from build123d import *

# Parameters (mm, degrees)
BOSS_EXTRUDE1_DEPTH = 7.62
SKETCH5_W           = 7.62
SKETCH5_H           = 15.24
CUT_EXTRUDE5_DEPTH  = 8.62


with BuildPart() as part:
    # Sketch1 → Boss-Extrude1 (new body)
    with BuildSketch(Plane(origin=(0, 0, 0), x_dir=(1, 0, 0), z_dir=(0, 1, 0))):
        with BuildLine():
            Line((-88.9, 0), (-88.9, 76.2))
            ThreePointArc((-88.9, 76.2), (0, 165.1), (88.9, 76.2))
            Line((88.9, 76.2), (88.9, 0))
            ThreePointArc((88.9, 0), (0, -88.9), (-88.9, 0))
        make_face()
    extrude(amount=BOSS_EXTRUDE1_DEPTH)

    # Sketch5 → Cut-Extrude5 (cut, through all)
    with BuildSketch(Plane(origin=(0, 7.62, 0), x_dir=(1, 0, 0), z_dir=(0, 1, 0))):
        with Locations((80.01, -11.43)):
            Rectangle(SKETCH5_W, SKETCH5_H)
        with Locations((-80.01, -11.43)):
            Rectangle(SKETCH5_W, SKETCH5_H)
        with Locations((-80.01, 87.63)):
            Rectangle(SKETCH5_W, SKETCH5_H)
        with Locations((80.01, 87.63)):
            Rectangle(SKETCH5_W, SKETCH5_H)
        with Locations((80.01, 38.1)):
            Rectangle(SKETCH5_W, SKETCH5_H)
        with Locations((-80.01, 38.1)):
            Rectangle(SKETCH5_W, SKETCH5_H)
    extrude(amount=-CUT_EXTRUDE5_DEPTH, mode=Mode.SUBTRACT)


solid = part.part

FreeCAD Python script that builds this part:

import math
import FreeCAD as App
import Part
import Sketcher
Q = App.Units.Quantity


def add_polygon(sketch, points):
    """Adds a closed chain of lines whose ends are joined by coincident constraints."""
    first, n = sketch.GeometryCount, len(points)
    for a, b in zip(points, points[1:] + points[:1]):
        sketch.addGeometry(Part.LineSegment(App.Vector(*a, 0), App.Vector(*b, 0)), False)
    for i in range(n):
        sketch.addConstraint(Sketcher.Constraint("Coincident", first + i, 2, first + (i + 1) % n, 1))

doc = App.newDocument("Part")
body = doc.addObject("PartDesign::Body", "Body")

sketch1 = body.newObject("Sketcher::SketchObject", "Sketch")
sketch1.AttachmentSupport = (doc.getObject("XZ_Plane"), [""])
sketch1.MapMode = "FlatFace"
sketch1.addGeometry([
    Part.LineSegment(App.Vector(-89, -76, 0), App.Vector(-89, 0, 0)),
    Part.ArcOfCircle(Part.Circle(App.Vector(0, 0, 0), App.Vector(0, 0, 1), 89), math.radians(0), math.radians(180)),
    Part.LineSegment(App.Vector(89, 0, 0), App.Vector(89, -76, 0)),
    Part.ArcOfCircle(Part.Circle(App.Vector(0, -76, 0), App.Vector(0, 0, 1), 89), math.radians(180), math.radians(360)),
], False)
sketch1.addConstraint([
    Sketcher.Constraint("Tangent", 0, 2, 1, 2),
    Sketcher.Constraint("Tangent", 1, 1, 2, 1),
    Sketcher.Constraint("Tangent", 2, 2, 3, 2),
    Sketcher.Constraint("Tangent", 3, 1, 0, 1),
    Sketcher.Constraint("Vertical", 0),
    Sketcher.Constraint("Vertical", 2),
    Sketcher.Constraint("Coincident", 1, 3, -1, 1),
    Sketcher.Constraint("Radius", 1, Q("3.5 in")),
    Sketcher.Constraint("DistanceY", 0, 1, 0, 2, Q("3 in")),
])
pad1 = body.newObject("PartDesign::Pad", "Pad")
pad1.Profile = sketch1
pad1.Length = Q("0.3 in")
pad1.Reversed = True

sketch2 = body.newObject("Sketcher::SketchObject", "Sketch001")
sketch2.AttachmentSupport = (doc.getObject("XZ_Plane"), [""])
sketch2.MapMode = "FlatFace"
sketch2.AttachmentOffset = App.Placement(App.Vector(0, 0, -0.3 * 25.4), App.Rotation())
add_polygon(sketch2, [(76, 4), (76, 19), (84, 19), (84, 4)])
add_polygon(sketch2, [(-84, 4), (-84, 19), (-76, 19), (-76, 4)])
add_polygon(sketch2, [(-84, -95), (-84, -80), (-76, -80), (-76, -95)])
add_polygon(sketch2, [(76, -95), (76, -80), (84, -80), (84, -95)])
add_polygon(sketch2, [(76, -46), (76, -30), (84, -30), (84, -46)])
add_polygon(sketch2, [(-84, -46), (-84, -30), (-76, -30), (-76, -46)])
sketch2.addConstraint([
    Sketcher.Constraint("Vertical", 0),
    Sketcher.Constraint("Horizontal", 1),
    Sketcher.Constraint("Vertical", 2),
    Sketcher.Constraint("Horizontal", 3),
    Sketcher.Constraint("Vertical", 4),
    Sketcher.Constraint("Horizontal", 5),
    Sketcher.Constraint("Vertical", 6),
    Sketcher.Constraint("Horizontal", 7),
    Sketcher.Constraint("Vertical", 8),
    Sketcher.Constraint("Horizontal", 9),
    Sketcher.Constraint("Vertical", 10),
    Sketcher.Constraint("Horizontal", 11),
    Sketcher.Constraint("Vertical", 12),
    Sketcher.Constraint("Horizontal", 13),
    Sketcher.Constraint("Vertical", 14),
    Sketcher.Constraint("Horizontal", 15),
    Sketcher.Constraint("Vertical", 16),
    Sketcher.Constraint("Horizontal", 17),
    Sketcher.Constraint("Vertical", 18),
    Sketcher.Constraint("Horizontal", 19),
    Sketcher.Constraint("Vertical", 20),
    Sketcher.Constraint("Horizontal", 21),
    Sketcher.Constraint("Vertical", 22),
    Sketcher.Constraint("Horizontal", 23),
    Sketcher.Constraint("Symmetric", 1, 2, 4, 2, -2),
    Sketcher.Constraint("Symmetric", 3, 2, 6, 2, -2),
    Sketcher.Constraint("Symmetric", 9, 2, 12, 2, -2),
    Sketcher.Constraint("Symmetric", 11, 2, 14, 2, -2),
    Sketcher.Constraint("Symmetric", 17, 2, 20, 2, -2),
    Sketcher.Constraint("Symmetric", 19, 2, 22, 2, -2),
    Sketcher.Constraint("Vertical", 7, 2, 8, 2),
    Sketcher.Constraint("Vertical", 6, 2, 9, 2),
    Sketcher.Constraint("Vertical", 15, 2, 16, 2),
    Sketcher.Constraint("Vertical", 14, 2, 17, 2),
    Sketcher.Constraint("Equal", 6, 8),
    Sketcher.Constraint("Equal", 14, 16),
    Sketcher.Constraint("DistanceX", 1, 1, 1, 2, Q("0.3 in")),
    Sketcher.Constraint("DistanceY", 0, 1, 0, 2, Q("0.6 in")),
    Sketcher.Constraint("DistanceX", -1, 1, 0, 2, Q("3 in")),
    Sketcher.Constraint("DistanceY", 16, 2, -1, 1, Q("1.2 in")),
    Sketcher.Constraint("DistanceY", 8, 2, 7, 2, Q("3.3 in")),
    Sketcher.Constraint("DistanceY", -1, 1, 0, 2, Q("0.75 in")),
])
pocket1 = body.newObject("PartDesign::Pocket", "Pocket")
pocket1.Profile = sketch2
pocket1.Type = "ThroughAll"
pocket1.Reversed = True

doc.recompute()
